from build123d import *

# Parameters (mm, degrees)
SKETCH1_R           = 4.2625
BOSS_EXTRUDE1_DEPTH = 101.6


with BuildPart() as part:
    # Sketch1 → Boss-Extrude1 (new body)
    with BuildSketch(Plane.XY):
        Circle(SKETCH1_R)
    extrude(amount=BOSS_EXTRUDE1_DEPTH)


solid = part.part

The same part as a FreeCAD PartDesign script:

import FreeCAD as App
import Part
import Sketcher
from FreeCAD import Vector
Q = App.Units.Quantity

doc = App.newDocument("Part")
body = doc.addObject("PartDesign::Body", "Body")

# Sketch on XY plane
sketch1 = doc.addObject("Sketcher::SketchObject", "Sketch")
body.addObject(sketch1)
sketch1.AttachmentSupport = (doc.XY_Plane, [""])
sketch1.MapMode = "FlatFace"
sketch1.addGeometry(Part.Circle(Vector(0, 0, 0), Vector(0, 0, 1), 4.3), False)
sketch1.addConstraint([
    Sketcher.Constraint("Coincident", 0, 3, -1, 1),
    Sketcher.Constraint("Diameter", 0, Q("8.525 mm")),
])
pad1 = doc.addObject("PartDesign::Pad", "Pad")
body.addObject(pad1)
pad1.Profile = sketch1
pad1.Length = Q("4 in")

doc.recompute()
